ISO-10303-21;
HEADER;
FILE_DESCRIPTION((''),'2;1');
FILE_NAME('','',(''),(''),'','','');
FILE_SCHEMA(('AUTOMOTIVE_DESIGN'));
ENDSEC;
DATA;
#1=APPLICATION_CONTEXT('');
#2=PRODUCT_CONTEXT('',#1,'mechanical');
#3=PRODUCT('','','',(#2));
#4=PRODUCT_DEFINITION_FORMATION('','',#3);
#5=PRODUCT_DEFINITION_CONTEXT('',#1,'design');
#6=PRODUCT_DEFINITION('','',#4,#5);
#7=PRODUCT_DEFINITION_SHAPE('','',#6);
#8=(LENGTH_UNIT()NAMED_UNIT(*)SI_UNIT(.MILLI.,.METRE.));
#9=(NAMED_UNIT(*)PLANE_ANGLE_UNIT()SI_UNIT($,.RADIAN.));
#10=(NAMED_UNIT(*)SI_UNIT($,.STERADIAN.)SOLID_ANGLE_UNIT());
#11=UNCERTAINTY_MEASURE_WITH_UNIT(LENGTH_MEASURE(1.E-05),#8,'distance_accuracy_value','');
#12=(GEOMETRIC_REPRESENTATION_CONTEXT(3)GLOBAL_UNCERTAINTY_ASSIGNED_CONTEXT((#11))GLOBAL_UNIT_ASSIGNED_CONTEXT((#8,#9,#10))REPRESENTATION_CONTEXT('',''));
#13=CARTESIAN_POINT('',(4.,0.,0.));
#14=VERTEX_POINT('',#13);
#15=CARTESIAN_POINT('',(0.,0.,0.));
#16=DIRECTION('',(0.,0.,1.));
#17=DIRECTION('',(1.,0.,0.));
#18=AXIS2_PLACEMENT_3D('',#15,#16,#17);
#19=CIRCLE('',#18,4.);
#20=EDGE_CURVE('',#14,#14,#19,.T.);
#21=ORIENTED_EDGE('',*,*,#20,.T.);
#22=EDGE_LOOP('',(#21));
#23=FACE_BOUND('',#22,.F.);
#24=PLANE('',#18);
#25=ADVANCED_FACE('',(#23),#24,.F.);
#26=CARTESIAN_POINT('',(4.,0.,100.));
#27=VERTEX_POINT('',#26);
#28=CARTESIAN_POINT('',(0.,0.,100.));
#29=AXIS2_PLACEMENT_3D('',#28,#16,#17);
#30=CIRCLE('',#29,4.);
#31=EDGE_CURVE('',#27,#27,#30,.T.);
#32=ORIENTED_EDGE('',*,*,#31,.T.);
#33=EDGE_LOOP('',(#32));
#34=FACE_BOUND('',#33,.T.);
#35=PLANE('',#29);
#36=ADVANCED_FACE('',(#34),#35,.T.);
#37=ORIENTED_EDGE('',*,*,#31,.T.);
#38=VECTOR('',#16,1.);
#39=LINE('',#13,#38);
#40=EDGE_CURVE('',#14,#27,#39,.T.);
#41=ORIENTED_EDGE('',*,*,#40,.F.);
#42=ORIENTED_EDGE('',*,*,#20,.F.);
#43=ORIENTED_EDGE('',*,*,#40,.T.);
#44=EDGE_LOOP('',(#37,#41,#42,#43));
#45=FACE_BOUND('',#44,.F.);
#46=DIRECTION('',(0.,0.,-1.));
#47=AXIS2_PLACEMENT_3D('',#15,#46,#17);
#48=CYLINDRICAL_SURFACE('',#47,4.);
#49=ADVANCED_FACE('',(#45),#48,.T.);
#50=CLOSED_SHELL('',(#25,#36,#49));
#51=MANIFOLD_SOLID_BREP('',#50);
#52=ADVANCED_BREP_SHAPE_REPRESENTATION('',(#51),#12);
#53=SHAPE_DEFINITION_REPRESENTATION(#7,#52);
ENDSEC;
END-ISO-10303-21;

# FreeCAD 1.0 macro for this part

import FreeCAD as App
import Part
import Sketcher

V = App.Vector
Q = App.Units.Quantity

doc = App.newDocument("Part")
body = doc.addObject("PartDesign::Body", "Body")

sketch1 = body.newObject("Sketcher::SketchObject", "Sketch")
sketch1.AttachmentSupport = (doc.getObject("XY_Plane"), [""])
sketch1.MapMode = "FlatFace"
sketch1.addGeometry(Part.Circle(V(0, 0, 0), V(0, 0, 1), 4), False)
sketch1.addConstraint([
    Sketcher.Constraint("Coincident", 0, 3, -1, 1),
    Sketcher.Constraint("Diameter", 0, Q("8 mm")),
])
pad1 = body.newObject("PartDesign::Pad", "Pad")
pad1.Profile = sketch1
pad1.Length = 100

doc.recompute()
